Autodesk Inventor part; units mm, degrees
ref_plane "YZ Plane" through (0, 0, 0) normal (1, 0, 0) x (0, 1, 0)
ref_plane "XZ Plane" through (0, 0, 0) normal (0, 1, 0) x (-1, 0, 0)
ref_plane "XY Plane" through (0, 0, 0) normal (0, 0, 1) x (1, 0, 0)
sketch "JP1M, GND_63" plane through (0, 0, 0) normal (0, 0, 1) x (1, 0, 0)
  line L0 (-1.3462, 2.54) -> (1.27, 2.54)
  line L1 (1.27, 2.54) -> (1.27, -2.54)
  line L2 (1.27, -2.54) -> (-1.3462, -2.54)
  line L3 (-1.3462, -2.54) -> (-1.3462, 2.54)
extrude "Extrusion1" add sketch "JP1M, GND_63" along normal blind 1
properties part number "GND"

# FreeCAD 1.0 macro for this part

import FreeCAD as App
import Part
import Sketcher
Q = App.Units.Quantity


def add_polygon(sketch, points):
    """Adds a closed chain of lines whose ends are joined by coincident constraints."""
    first, n = sketch.GeometryCount, len(points)
    for a, b in zip(points, points[1:] + points[:1]):
        sketch.addGeometry(Part.LineSegment(App.Vector(*a, 0), App.Vector(*b, 0)), False)
    for i in range(n):
        sketch.addConstraint(Sketcher.Constraint("Coincident", first + i, 2, first + (i + 1) % n, 1))

doc = App.newDocument("Part")
body = doc.addObject("PartDesign::Body", "Body")

# Sketch on XY plane
sketch1 = body.newObject("Sketcher::SketchObject", "Sketch")
sketch1.AttachmentSupport = (doc.getObject("XY_Plane"), [""])
sketch1.MapMode = "FlatFace"
add_polygon(sketch1, [(1.3, 2.5), (-1.3, 2.5), (-1.3, -2.5), (1.3, -2.5)])  # lines 0-3
sketch1.addConstraint(Sketcher.Constraint("Horizontal", 0))
sketch1.addConstraint(Sketcher.Constraint("Vertical", 1))
sketch1.addConstraint(Sketcher.Constraint("Horizontal", 2))
sketch1.addConstraint(Sketcher.Constraint("Vertical", 3))
sketch1.addConstraint(Sketcher.Constraint("DistanceY", 1, 2, 1, 1, Q("0.2 in")))
sketch1.addConstraint(Sketcher.Constraint("DistanceY", -1, 1, 0, 2, Q("0.1 in")))
sketch1.addConstraint(Sketcher.Constraint("DistanceX", 0, 2, 0, 1, Q("0.103 in")))
sketch1.addConstraint(Sketcher.Constraint("DistanceX", -1, 1, 2, 2, Q("0.05 in")))
pad1 = body.newObject("PartDesign::Pad", "Pad")
pad1.Profile = sketch1
pad1.Length = 1

doc.recompute()
